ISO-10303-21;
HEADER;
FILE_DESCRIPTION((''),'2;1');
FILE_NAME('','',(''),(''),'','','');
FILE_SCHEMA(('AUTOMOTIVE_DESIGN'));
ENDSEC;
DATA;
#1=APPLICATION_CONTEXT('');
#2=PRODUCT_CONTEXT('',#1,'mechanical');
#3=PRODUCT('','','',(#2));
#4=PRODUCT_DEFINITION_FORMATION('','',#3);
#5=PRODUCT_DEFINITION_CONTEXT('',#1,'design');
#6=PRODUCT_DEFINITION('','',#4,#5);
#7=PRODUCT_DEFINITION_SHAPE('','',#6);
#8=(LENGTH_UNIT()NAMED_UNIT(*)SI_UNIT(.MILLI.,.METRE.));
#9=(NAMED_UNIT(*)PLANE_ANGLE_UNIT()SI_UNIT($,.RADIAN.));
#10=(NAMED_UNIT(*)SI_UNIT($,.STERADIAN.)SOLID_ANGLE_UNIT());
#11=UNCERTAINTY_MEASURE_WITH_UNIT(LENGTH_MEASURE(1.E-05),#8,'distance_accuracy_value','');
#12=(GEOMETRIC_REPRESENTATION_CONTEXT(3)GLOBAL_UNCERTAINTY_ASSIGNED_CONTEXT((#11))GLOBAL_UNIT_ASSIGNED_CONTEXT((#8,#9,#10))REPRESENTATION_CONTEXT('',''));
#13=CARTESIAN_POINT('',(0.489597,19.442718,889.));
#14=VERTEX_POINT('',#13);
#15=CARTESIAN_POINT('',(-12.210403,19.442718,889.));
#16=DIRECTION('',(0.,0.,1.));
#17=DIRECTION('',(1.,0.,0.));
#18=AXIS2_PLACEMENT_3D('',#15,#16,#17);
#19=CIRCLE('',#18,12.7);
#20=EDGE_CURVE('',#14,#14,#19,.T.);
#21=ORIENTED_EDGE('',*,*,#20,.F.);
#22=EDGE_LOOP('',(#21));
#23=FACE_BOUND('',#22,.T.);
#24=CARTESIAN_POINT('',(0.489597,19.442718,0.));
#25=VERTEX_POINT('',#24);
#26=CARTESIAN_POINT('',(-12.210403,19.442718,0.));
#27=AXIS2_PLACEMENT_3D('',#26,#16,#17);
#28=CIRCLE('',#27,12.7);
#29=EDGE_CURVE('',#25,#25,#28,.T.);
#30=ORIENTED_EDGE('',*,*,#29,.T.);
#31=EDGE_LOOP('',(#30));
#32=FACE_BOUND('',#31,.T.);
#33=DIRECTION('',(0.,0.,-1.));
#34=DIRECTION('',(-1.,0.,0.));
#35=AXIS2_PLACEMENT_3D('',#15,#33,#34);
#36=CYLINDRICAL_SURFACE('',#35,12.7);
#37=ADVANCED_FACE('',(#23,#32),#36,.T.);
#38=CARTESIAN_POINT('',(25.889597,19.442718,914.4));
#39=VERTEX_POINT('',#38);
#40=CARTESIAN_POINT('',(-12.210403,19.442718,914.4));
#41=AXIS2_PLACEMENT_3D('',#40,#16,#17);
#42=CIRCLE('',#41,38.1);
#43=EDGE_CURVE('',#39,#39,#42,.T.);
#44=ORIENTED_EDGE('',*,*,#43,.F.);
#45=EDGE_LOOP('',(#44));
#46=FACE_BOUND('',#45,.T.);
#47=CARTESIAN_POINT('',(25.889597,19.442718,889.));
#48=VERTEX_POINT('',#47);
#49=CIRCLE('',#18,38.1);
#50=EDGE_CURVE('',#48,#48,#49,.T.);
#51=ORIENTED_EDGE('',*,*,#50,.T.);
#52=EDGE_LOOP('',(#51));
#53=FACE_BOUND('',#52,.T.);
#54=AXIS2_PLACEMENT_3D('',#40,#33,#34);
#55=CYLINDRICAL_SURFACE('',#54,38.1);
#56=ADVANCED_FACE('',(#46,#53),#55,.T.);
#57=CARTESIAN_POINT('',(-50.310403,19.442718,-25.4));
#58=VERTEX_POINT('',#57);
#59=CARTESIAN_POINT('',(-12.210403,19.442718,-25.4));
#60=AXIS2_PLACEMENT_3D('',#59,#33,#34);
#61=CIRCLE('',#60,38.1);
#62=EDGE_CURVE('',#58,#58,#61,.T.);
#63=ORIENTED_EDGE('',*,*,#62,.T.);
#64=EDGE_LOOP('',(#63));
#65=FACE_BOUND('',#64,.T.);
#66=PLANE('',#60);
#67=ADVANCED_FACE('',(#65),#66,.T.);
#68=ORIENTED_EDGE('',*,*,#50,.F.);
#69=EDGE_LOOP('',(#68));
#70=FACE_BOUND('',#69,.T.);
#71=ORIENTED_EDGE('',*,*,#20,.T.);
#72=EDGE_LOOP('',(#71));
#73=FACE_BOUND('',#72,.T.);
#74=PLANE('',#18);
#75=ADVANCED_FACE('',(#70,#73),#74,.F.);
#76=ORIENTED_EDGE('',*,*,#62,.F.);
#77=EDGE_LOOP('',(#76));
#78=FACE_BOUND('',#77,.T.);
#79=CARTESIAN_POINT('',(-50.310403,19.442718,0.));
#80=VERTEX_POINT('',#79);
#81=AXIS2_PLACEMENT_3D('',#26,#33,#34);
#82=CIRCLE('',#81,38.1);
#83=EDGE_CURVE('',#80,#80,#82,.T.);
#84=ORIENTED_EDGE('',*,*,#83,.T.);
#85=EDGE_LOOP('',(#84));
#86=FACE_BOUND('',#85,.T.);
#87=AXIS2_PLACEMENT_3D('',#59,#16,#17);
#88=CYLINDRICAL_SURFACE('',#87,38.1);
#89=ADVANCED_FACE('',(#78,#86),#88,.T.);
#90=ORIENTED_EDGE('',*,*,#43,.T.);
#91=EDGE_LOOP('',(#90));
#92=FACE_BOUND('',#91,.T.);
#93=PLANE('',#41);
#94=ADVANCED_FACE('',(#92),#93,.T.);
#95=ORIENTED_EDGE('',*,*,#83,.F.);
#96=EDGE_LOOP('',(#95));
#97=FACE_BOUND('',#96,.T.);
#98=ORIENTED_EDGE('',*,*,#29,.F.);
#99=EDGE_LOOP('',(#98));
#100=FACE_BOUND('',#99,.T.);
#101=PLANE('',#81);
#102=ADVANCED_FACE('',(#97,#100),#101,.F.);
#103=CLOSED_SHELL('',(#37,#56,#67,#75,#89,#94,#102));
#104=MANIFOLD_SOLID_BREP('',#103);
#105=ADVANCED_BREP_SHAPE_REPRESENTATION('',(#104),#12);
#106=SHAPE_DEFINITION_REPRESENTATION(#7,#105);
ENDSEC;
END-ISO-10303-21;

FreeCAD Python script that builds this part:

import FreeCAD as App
import Part
import Sketcher

V = App.Vector
Q = App.Units.Quantity

doc = App.newDocument("Part")
body = doc.addObject("PartDesign::Body", "Body")

# Sketch on XY plane
sketch1 = doc.addObject("Sketcher::SketchObject", "Sketch")
body.addObject(sketch1)
sketch1.AttachmentSupport = (doc.XY_Plane, [""])
sketch1.MapMode = "FlatFace"
sketch1.addGeometry(Part.Circle(V(-12, 19, 0), V(0, 0, 1), 13), False)
sketch1.addConstraint([
    Sketcher.Constraint("Diameter", 0, Q("1 in")),
    Sketcher.Constraint("DistanceY", -1, 1, 0, 3, 19.442718),
    Sketcher.Constraint("DistanceX", 0, 3, -1, 1, 12.210403),
])
pad1 = doc.addObject("PartDesign::Pad", "Pad")
body.addObject(pad1)
pad1.Profile = sketch1
pad1.Length = Q("35 in")

# Sketch on XY plane
sketch2 = doc.addObject("Sketcher::SketchObject", "Sketch001")
body.addObject(sketch2)
sketch2.AttachmentSupport = (doc.XY_Plane, [""])
sketch2.MapMode = "FlatFace"
sketch2.AttachmentOffset = App.Placement(V(0, 0, 35 * 25.4), App.Rotation())
sketch2.addGeometry(Part.Circle(V(-12, 19, 0), V(0, 0, 1), 38), False)
sketch2.addConstraint([
    Sketcher.Constraint("Diameter", 0, Q("3 in")),
    Sketcher.Constraint("DistanceY", -1, 1, 0, 3, 19.442718),
    Sketcher.Constraint("DistanceX", 0, 3, -1, 1, 12.210403),
])
pad2 = doc.addObject("PartDesign::Pad", "Pad001")
body.addObject(pad2)
pad2.Profile = sketch2
pad2.Length = Q("1 in")

# Sketch on XY plane
sketch3 = doc.addObject("Sketcher::SketchObject", "Sketch002")
body.addObject(sketch3)
sketch3.AttachmentSupport = (doc.XY_Plane, [""])
sketch3.MapMode = "FlatFace"
sketch3.AttachmentOffset = App.Placement(V(0, 0, -1 * 25.4), App.Rotation())
sketch3.addGeometry(Part.Circle(V(-12, 19, 0), V(0, 0, 1), 38), False)
sketch3.addConstraint([
    Sketcher.Constraint("Diameter", 0, Q("3 in")),
    Sketcher.Constraint("DistanceY", -1, 1, 0, 3, 19.442718),
    Sketcher.Constraint("DistanceX", 0, 3, -1, 1, 12.210403),
])
pad3 = doc.addObject("PartDesign::Pad", "Pad002")
body.addObject(pad3)
pad3.Profile = sketch3
pad3.Length = Q("1 in")

doc.recompute()
